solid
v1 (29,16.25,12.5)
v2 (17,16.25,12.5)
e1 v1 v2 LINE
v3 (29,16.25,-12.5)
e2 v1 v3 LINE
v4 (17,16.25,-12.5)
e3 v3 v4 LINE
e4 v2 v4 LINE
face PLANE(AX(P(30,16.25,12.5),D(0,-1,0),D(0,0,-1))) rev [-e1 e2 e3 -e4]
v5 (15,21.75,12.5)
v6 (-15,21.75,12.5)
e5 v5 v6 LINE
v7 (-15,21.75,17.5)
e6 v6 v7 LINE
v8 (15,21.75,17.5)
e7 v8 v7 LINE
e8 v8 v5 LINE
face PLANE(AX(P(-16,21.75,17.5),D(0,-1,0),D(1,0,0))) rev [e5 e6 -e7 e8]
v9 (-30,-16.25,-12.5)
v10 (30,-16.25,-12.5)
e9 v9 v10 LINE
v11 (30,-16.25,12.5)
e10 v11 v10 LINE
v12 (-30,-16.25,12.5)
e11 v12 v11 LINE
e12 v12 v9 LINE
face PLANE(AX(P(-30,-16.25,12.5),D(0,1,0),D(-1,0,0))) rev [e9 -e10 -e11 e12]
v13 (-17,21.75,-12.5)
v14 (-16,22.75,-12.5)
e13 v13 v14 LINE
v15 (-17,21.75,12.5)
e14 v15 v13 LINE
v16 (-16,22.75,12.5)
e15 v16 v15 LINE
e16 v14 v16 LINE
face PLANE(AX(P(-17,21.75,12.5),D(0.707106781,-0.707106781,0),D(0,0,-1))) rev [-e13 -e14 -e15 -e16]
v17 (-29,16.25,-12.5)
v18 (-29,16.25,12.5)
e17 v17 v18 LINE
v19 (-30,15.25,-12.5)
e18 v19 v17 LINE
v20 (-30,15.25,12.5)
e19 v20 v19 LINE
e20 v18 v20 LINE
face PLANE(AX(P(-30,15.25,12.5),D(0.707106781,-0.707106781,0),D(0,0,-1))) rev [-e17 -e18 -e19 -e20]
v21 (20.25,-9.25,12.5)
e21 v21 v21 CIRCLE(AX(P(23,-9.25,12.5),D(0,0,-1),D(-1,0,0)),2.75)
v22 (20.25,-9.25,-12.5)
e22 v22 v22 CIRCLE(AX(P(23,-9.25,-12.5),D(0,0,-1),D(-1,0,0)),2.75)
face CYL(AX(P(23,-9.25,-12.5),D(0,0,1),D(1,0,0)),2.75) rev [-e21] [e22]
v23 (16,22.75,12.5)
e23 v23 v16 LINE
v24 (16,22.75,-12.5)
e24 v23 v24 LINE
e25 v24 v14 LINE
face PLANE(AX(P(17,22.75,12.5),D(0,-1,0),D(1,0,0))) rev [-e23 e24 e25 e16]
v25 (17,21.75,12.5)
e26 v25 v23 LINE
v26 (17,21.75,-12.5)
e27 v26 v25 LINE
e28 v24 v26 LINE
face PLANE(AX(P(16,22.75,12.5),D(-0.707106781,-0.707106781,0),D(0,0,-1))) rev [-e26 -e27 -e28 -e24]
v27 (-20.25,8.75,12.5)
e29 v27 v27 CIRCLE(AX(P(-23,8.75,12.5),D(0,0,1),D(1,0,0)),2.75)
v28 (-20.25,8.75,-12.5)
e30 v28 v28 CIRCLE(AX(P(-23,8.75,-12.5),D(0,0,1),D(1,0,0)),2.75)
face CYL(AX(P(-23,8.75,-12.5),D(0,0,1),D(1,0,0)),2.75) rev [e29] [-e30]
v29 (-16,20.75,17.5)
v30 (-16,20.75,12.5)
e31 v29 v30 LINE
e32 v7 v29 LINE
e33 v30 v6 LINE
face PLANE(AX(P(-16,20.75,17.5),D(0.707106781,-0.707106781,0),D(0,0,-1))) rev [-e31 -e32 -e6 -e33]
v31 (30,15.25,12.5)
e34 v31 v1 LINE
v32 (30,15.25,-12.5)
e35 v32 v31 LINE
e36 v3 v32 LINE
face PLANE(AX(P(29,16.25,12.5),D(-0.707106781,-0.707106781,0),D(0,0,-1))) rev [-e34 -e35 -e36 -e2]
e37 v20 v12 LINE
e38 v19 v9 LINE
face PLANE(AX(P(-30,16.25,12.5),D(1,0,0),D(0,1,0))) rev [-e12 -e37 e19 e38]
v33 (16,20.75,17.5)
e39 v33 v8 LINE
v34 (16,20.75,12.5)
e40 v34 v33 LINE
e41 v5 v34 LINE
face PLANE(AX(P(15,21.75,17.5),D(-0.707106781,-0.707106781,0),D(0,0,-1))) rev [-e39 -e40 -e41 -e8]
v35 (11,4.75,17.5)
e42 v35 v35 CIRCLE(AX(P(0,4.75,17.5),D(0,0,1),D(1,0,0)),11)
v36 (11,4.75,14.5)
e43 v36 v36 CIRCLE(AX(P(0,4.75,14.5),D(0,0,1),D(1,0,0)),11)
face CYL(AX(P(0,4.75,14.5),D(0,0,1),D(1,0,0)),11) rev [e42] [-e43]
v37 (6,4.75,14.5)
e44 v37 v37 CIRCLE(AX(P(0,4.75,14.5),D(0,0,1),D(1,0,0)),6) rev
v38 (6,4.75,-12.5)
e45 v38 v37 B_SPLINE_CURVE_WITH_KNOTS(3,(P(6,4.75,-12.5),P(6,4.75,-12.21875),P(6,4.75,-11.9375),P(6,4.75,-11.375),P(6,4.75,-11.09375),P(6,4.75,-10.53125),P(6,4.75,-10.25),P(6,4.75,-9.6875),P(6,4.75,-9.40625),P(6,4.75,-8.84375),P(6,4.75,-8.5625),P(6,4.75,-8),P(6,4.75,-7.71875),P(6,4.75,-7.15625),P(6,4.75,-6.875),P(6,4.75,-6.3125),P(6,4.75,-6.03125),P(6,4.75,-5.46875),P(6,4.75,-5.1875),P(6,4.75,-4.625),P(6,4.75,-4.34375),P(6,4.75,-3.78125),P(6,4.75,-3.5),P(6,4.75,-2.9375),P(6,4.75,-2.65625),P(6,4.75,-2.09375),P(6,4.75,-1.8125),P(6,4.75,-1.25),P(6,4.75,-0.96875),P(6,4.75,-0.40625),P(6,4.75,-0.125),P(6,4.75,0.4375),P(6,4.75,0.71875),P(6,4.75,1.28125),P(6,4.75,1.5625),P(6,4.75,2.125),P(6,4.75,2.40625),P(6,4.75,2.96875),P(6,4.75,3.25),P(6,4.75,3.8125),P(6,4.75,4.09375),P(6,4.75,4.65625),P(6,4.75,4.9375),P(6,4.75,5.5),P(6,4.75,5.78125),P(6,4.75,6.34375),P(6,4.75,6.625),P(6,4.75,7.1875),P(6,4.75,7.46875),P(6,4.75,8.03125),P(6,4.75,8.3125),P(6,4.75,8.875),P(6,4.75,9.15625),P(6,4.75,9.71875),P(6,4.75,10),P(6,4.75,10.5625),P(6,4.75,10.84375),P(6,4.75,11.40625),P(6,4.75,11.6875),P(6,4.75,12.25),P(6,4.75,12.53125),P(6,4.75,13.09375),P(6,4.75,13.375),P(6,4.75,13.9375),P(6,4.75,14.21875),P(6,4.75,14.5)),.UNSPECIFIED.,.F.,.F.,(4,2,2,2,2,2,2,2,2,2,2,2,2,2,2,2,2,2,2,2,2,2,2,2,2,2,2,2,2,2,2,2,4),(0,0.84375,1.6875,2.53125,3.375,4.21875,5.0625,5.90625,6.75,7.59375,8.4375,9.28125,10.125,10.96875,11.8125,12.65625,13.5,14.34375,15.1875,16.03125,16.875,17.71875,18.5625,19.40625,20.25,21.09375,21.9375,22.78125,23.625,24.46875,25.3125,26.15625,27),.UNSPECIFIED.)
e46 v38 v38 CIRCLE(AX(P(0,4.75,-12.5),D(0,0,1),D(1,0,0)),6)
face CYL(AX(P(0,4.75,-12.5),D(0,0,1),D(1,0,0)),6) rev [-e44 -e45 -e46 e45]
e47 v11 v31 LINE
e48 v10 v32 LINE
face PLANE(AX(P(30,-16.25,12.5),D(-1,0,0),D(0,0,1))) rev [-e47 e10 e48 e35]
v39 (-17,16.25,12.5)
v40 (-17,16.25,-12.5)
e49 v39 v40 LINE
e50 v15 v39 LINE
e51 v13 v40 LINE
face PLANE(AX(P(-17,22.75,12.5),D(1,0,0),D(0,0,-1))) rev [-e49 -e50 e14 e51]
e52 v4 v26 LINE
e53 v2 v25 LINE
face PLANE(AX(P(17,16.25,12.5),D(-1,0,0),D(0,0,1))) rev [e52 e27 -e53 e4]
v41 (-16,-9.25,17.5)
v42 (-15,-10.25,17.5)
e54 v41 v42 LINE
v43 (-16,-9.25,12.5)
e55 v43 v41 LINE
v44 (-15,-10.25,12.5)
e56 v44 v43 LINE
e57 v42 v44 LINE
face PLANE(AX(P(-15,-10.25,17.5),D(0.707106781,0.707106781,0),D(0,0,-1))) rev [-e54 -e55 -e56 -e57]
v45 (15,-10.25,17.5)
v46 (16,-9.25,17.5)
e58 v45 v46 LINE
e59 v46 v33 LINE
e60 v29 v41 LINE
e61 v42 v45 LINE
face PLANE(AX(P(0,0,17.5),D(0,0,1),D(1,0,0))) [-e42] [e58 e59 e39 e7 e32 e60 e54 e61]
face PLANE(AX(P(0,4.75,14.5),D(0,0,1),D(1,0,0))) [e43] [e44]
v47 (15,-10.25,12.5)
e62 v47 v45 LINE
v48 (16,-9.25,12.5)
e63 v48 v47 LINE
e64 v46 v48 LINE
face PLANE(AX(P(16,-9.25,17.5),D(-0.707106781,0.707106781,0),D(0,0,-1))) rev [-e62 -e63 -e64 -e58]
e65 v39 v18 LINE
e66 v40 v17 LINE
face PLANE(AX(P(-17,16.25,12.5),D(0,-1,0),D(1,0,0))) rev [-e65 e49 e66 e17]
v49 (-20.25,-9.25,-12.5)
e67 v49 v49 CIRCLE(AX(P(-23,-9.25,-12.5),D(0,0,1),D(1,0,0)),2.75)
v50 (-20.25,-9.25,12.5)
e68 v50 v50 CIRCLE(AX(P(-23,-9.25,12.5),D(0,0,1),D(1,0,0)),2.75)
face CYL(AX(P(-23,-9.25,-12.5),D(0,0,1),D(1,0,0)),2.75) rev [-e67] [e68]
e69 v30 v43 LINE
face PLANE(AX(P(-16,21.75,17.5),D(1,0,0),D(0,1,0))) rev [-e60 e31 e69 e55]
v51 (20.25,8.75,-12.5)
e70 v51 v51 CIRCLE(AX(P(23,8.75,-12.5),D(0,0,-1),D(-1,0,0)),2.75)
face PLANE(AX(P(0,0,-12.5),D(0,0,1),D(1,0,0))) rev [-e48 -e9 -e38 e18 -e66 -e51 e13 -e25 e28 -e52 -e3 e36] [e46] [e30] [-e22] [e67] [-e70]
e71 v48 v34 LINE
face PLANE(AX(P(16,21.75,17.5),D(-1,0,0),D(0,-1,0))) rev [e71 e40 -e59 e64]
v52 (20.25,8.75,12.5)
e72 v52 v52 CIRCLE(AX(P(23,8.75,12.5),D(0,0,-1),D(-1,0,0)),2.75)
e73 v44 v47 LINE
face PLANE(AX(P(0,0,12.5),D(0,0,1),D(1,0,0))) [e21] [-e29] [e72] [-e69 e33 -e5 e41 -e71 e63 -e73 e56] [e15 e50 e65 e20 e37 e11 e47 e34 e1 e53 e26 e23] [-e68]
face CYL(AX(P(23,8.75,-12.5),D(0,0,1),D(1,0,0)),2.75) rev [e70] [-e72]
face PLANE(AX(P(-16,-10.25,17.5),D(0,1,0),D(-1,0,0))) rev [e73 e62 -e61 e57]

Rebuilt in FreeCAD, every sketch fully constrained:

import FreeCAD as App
import Part
import Sketcher


def edges_at(feature, points):
    """Names of the edges that pass closest to the given points."""
    edges = feature.Shape.Edges
    near = lambda p: min(range(len(edges)), key=lambda i: edges[i].distToShape(Part.Vertex(*p))[0])
    return sorted({f"Edge{near(p) + 1}" for p in points})


def add_polygon(sketch, points):
    """Adds a closed chain of lines whose ends are joined by coincident constraints."""
    first, n = sketch.GeometryCount, len(points)
    for a, b in zip(points, points[1:] + points[:1]):
        sketch.addGeometry(Part.LineSegment(App.Vector(*a, 0), App.Vector(*b, 0)), False)
    for i in range(n):
        sketch.addConstraint(Sketcher.Constraint("Coincident", first + i, 2, first + (i + 1) % n, 1))

doc = App.newDocument("Part")
body = doc.addObject("PartDesign::Body", "Body")

# Sketch on XY plane
sketch1 = body.newObject("Sketcher::SketchObject", "Sketch")
sketch1.AttachmentSupport = (doc.getObject("XY_Plane"), [""])
sketch1.MapMode = "FlatFace"
add_polygon(sketch1, [(-30, 16), (-30, -16), (30, -16), (30, 16), (17, 16), (17, 23), (-17, 23), (-17, 16)])  # lines 0-7
sketch1.addConstraint([
    Sketcher.Constraint("Vertical", 0),
    Sketcher.Constraint("Horizontal", 1),
    Sketcher.Constraint("Vertical", 2),
    Sketcher.Constraint("Horizontal", 3),
    Sketcher.Constraint("Vertical", 4),
    Sketcher.Constraint("Horizontal", 5),
    Sketcher.Constraint("Vertical", 6),
    Sketcher.Constraint("Horizontal", 7),
    Sketcher.Constraint("Symmetric", 0, 2, 2, 2, -1, 1),
    Sketcher.Constraint("Symmetric", 3, 2, 6, 2, -2),
    Sketcher.Constraint("DistanceX", 1, 1, 1, 2, 60.0),
    Sketcher.Constraint("DistanceX", 3, 2, 3, 1, 13.0),
    Sketcher.Constraint("DistanceY", 0, 2, 0, 1, 32.5),
    Sketcher.Constraint("DistanceY", 4, 1, 4, 2, 6.5),
])
pad1 = body.newObject("PartDesign::Pad", "Pad")
pad1.Profile = sketch1
pad1.Length = 25
pad1.Midplane = True

# Sketch on XY plane
sketch2 = body.newObject("Sketcher::SketchObject", "Sketch001")
sketch2.AttachmentSupport = (doc.getObject("XY_Plane"), [""])
sketch2.MapMode = "FlatFace"
sketch2.AttachmentOffset = App.Placement(App.Vector(0, 0, 12.5), App.Rotation())
add_polygon(sketch2, [(-16, 22), (-16, -10), (16, -10), (16, 22)])  # lines 0-3
sketch2.addConstraint([
    Sketcher.Constraint("Vertical", 0),
    Sketcher.Constraint("Horizontal", 1),
    Sketcher.Constraint("Vertical", 2),
    Sketcher.Constraint("Horizontal", 3),
    Sketcher.Constraint("Equal", 3, 0),
    Sketcher.Constraint("DistanceX", 1, 1, 1, 2, 32.0),
    Sketcher.Constraint("DistanceX", 0, 2, -1, 1, 16.0),
    Sketcher.Constraint("DistanceY", 0, 2, -1, 1, 10.25),
])
pad2 = body.newObject("PartDesign::Pad", "Pad001")
pad2.Profile = sketch2
pad2.Length = 5
doc.recompute()

chamfer = body.newObject("PartDesign::Chamfer", "Chamfer")
chamfer.Base = (pad2, edges_at(pad2, [
    (-16, 21.75, 15),
    (-16, -10.25, 15),
    (16, -10.25, 15),
    (16, 21.75, 15),
]))
chamfer.Size = 1
doc.recompute()

chamfer2 = body.newObject("PartDesign::Chamfer", "Chamfer001")
chamfer2.Base = (chamfer, edges_at(chamfer, [(30, 16.25, 0), (-30, 16.25, 0)]))
chamfer2.Size = 1

# Sketch on XY plane
sketch3 = body.newObject("Sketcher::SketchObject", "Sketch002")
sketch3.AttachmentSupport = (doc.getObject("XY_Plane"), [""])
sketch3.MapMode = "FlatFace"
sketch3.AttachmentOffset = App.Placement(App.Vector(0, 0, 12.5), App.Rotation())
sketch3.addGeometry([
    Part.Circle(App.Vector(-23, 8.8, 0), App.Vector(0, 0, 1), 2.8),
    Part.Circle(App.Vector(-23, -9.2, 0), App.Vector(0, 0, 1), 2.8),
], False)
sketch3.addConstraint([
    Sketcher.Constraint("Equal", 0, 1),
    Sketcher.Constraint("Vertical", 0, 3, 1, 3),
    Sketcher.Constraint("Diameter", 0, 5.5),
    Sketcher.Constraint("DistanceX", 0, 3, -1, 1, 23.0),
    Sketcher.Constraint("DistanceY", 1, 3, 0, 3, 18.0),
    Sketcher.Constraint("DistanceY", -1, 1, 0, 3, 8.75),
])
pocket1 = body.newObject("PartDesign::Pocket", "Pocket")
pocket1.Profile = sketch3
pocket1.Type = "ThroughAll"
doc.recompute()

mirrored = body.newObject("PartDesign::Mirrored", "Mirrored")
mirrored.Originals = [pocket1]
mirrored.MirrorPlane = (doc.getObject("YZ_Plane"), [""])
body.Tip = mirrored
doc.recompute()

chamfer3 = body.newObject("PartDesign::Chamfer", "Chamfer002")
chamfer3.Base = (mirrored, edges_at(mirrored, [(-17, 22.75, 0), (17, 22.75, 0)]))
chamfer3.Size = 1

# Sketch on XY plane
sketch4 = body.newObject("Sketcher::SketchObject", "Sketch003")
sketch4.AttachmentSupport = (doc.getObject("XY_Plane"), [""])
sketch4.MapMode = "FlatFace"
sketch4.AttachmentOffset = App.Placement(App.Vector(0, 0, 17.5), App.Rotation())
sketch4.addGeometry(Part.Circle(App.Vector(0, 5, 0), App.Vector(0, 0, 1), 6), False)
sketch4.addConstraint([
    Sketcher.Constraint("PointOnObject", 0, 3, -2),
    Sketcher.Constraint("Diameter", 0, 12.0),
    Sketcher.Constraint("DistanceY", -1, 1, 0, 3, 4.75),
])
pocket2 = body.newObject("PartDesign::Pocket", "Pocket001")
pocket2.Profile = sketch4
pocket2.Type = "ThroughAll"

# Sketch on XY plane
sketch5 = body.newObject("Sketcher::SketchObject", "Sketch004")
sketch5.AttachmentSupport = (doc.getObject("XY_Plane"), [""])
sketch5.MapMode = "FlatFace"
sketch5.AttachmentOffset = App.Placement(App.Vector(0, 0, 17.5), App.Rotation())
sketch5.addGeometry(Part.Circle(App.Vector(0, 5, 0), App.Vector(0, 0, 1), 11), False)
sketch5.addConstraint([
    Sketcher.Constraint("PointOnObject", 0, 3, -2),
    Sketcher.Constraint("Diameter", 0, 22.0),
    Sketcher.Constraint("DistanceY", -1, 1, 0, 3, 4.75),
])
pocket3 = body.newObject("PartDesign::Pocket", "Pocket002")
pocket3.Profile = sketch5
pocket3.Length = 3

doc.recompute()
